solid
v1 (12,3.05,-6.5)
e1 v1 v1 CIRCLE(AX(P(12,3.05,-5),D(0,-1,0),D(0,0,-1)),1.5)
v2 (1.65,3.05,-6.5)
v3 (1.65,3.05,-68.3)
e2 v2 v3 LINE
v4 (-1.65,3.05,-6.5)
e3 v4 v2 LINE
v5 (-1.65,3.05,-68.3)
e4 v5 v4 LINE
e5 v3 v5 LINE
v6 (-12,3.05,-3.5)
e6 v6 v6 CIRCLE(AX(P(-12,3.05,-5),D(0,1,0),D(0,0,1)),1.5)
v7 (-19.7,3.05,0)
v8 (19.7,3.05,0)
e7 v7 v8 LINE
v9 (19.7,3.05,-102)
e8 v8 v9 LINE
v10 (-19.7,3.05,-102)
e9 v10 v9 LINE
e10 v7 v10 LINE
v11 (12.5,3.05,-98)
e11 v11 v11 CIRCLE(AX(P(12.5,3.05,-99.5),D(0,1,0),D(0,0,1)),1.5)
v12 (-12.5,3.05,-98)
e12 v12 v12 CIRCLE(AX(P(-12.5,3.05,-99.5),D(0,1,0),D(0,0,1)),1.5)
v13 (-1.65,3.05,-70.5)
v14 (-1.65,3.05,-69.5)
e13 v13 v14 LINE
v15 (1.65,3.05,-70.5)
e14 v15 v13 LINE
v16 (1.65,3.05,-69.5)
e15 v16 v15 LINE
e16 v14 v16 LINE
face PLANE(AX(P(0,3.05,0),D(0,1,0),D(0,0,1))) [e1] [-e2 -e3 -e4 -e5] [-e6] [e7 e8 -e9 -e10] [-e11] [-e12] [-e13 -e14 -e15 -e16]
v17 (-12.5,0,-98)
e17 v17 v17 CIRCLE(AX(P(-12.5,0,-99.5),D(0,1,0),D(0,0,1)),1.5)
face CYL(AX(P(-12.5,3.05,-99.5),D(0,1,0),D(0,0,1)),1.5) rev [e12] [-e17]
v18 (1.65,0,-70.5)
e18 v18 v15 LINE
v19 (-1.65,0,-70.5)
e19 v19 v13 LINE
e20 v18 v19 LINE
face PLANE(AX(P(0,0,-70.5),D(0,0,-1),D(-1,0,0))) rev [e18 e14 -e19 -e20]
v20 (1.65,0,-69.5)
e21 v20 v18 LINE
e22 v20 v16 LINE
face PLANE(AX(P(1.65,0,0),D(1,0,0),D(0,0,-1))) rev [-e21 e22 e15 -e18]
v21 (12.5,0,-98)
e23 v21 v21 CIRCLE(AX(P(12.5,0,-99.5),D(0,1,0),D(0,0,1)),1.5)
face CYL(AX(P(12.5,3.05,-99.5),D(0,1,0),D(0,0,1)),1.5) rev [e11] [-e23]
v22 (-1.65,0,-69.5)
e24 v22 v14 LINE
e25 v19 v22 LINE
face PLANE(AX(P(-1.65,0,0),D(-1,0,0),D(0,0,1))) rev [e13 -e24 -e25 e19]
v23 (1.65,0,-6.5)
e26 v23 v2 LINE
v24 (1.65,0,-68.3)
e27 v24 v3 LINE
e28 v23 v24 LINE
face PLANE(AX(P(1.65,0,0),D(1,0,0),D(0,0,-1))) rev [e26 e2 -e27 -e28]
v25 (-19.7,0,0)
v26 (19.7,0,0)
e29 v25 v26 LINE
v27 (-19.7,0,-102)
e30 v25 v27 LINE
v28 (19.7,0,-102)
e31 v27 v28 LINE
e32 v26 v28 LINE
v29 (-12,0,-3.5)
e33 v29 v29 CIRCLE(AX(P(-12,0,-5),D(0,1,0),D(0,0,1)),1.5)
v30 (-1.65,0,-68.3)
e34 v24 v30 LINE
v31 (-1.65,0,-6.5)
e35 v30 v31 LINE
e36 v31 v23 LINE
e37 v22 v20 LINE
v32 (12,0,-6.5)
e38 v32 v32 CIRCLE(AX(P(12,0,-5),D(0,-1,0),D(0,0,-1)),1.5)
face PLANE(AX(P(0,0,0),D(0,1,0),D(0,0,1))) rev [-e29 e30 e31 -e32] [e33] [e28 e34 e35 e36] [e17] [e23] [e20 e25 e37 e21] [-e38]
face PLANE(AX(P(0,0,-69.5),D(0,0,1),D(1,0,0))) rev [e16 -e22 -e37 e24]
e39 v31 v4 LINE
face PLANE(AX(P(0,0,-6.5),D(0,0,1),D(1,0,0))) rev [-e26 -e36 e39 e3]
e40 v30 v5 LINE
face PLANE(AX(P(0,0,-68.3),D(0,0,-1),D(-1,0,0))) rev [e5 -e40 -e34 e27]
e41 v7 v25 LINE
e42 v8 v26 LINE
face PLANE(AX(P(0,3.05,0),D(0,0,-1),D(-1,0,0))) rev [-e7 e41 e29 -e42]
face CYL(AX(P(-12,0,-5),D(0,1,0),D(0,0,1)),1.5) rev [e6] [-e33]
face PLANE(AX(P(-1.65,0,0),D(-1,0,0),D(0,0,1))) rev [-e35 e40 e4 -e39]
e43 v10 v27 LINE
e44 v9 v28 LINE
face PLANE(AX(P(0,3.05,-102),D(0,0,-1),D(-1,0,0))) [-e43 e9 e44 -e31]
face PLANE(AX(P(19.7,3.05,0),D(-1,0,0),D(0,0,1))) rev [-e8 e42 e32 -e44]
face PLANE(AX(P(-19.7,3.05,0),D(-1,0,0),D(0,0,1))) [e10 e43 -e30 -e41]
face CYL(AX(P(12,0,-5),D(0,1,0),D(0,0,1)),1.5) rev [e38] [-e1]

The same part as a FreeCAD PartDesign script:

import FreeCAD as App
import Part
import Sketcher

V = App.Vector

doc = App.newDocument("Part")
params = doc.addObject("Spreadsheet::Sheet", "Params")
for row, (alias, value) in enumerate([
    ("sketch1_height", "102 mm"),
    ("sketch1_width", "39.4 mm"),
    ("pad1_length", "3.05 mm"),
    ("sketch2_height", "1 mm"),
    ("sketch2_width", "3.3 mm"),
    ("sketch2_height2", "61.8 mm"),
    ("sketch3_diameter", "3 mm"),
    ("sketch4_diameter", "3 mm"),
    ("hole_diameter", "3 mm"),
], start=1):
    params.set(f"A{row}", alias)
    params.set(f"B{row}", "=" + value)
    params.setAlias(f"B{row}", alias)

body = doc.addObject("PartDesign::Body", "Body")

sketch1 = body.newObject("Sketcher::SketchObject", "Sketch")
sketch1.AttachmentSupport = (doc.getObject("XZ_Plane"), [""])
sketch1.MapMode = "FlatFace"
sketch1.addGeometry(Part.LineSegment(V(-19.7, -102, 0), V(-19.7, 0, 0)), False)
sketch1.addGeometry(Part.LineSegment(V(-19.7, 0, 0), V(19.7, 0, 0)), False)
sketch1.addGeometry(Part.LineSegment(V(19.7, 0, 0), V(19.7, -102, 0)), False)
sketch1.addGeometry(Part.LineSegment(V(19.7, -102, 0), V(-19.7, -102, 0)), False)
sketch1.addConstraint(Sketcher.Constraint("Coincident", 0, 2, 1, 1))
sketch1.addConstraint(Sketcher.Constraint("Coincident", 1, 2, 2, 1))
sketch1.addConstraint(Sketcher.Constraint("Coincident", 2, 2, 3, 1))
sketch1.addConstraint(Sketcher.Constraint("Coincident", 3, 2, 0, 1))
sketch1.addConstraint(Sketcher.Constraint("Vertical", 0))
sketch1.addConstraint(Sketcher.Constraint("Horizontal", 1))
sketch1.addConstraint(Sketcher.Constraint("Vertical", 2))
sketch1.addConstraint(Sketcher.Constraint("Horizontal", 3))
sketch1.addConstraint(Sketcher.Constraint("Symmetric", 0, 2, 1, 2, -1, 1))
sketch1.addConstraint(Sketcher.Constraint("DistanceY", 0, 1, 0, 2, 102.0))
sketch1.addConstraint(Sketcher.Constraint("DistanceX", 1, 1, 1, 2, 39.4))
sketch1.setExpression("Constraints[9]", "Params.sketch1_height")
sketch1.setExpression("Constraints[10]", "Params.sketch1_width")
pad1 = body.newObject("PartDesign::Pad", "Pad")
pad1.Profile = sketch1
pad1.setExpression("Length", "Params.pad1_length")
pad1.Reversed = True

sketch2 = body.newObject("Sketcher::SketchObject", "Sketch001")
sketch2.AttachmentSupport = (doc.getObject("XZ_Plane"), [""])
sketch2.MapMode = "FlatFace"
sketch2.AttachmentOffset = App.Placement(V(0, 0, -3.05), App.Rotation())
sketch2.addGeometry(Part.LineSegment(V(-1.65, -70.5, 0), V(-1.65, -69.5, 0)), False)
sketch2.addGeometry(Part.LineSegment(V(-1.65, -69.5, 0), V(1.65, -69.5, 0)), False)
sketch2.addGeometry(Part.LineSegment(V(1.65, -69.5, 0), V(1.65, -70.5, 0)), False)
sketch2.addGeometry(Part.LineSegment(V(1.65, -70.5, 0), V(-1.65, -70.5, 0)), False)
sketch2.addGeometry(Part.LineSegment(V(-1.65, -68.3, 0), V(-1.65, -6.5, 0)), False)
sketch2.addGeometry(Part.LineSegment(V(-1.65, -6.5, 0), V(1.65, -6.5, 0)), False)
sketch2.addGeometry(Part.LineSegment(V(1.65, -6.5, 0), V(1.65, -68.3, 0)), False)
sketch2.addGeometry(Part.LineSegment(V(1.65, -68.3, 0), V(-1.65, -68.3, 0)), False)
sketch2.addConstraint(Sketcher.Constraint("Coincident", 0, 2, 1, 1))
sketch2.addConstraint(Sketcher.Constraint("Coincident", 1, 2, 2, 1))
sketch2.addConstraint(Sketcher.Constraint("Coincident", 2, 2, 3, 1))
sketch2.addConstraint(Sketcher.Constraint("Coincident", 3, 2, 0, 1))
sketch2.addConstraint(Sketcher.Constraint("Coincident", 4, 2, 5, 1))
sketch2.addConstraint(Sketcher.Constraint("Coincident", 5, 2, 6, 1))
sketch2.addConstraint(Sketcher.Constraint("Coincident", 6, 2, 7, 1))
sketch2.addConstraint(Sketcher.Constraint("Coincident", 7, 2, 4, 1))
sketch2.addConstraint(Sketcher.Constraint("Vertical", 0))
sketch2.addConstraint(Sketcher.Constraint("Horizontal", 1))
sketch2.addConstraint(Sketcher.Constraint("Vertical", 2))
sketch2.addConstraint(Sketcher.Constraint("Horizontal", 3))
sketch2.addConstraint(Sketcher.Constraint("Vertical", 4))
sketch2.addConstraint(Sketcher.Constraint("Horizontal", 5))
sketch2.addConstraint(Sketcher.Constraint("Vertical", 6))
sketch2.addConstraint(Sketcher.Constraint("Horizontal", 7))
sketch2.addConstraint(Sketcher.Constraint("Vertical", 3, 2, 4, 2))
sketch2.addConstraint(Sketcher.Constraint("Vertical", 2, 2, 5, 2))
sketch2.addConstraint(Sketcher.Constraint("DistanceY", 0, 1, 0, 2, 1.0))
sketch2.addConstraint(Sketcher.Constraint("DistanceX", 1, 1, 1, 2, 3.3))
sketch2.addConstraint(Sketcher.Constraint("DistanceY", 4, 1, 4, 2, 61.8))
sketch2.addConstraint(Sketcher.Constraint("DistanceY", 0, 2, 4, 2, 63.0))
sketch2.addConstraint(Sketcher.Constraint("DistanceY", 0, 2, -1, 1, 69.5))
sketch2.addConstraint(Sketcher.Constraint("DistanceX", 0, 2, -1, 1, 1.65))
sketch2.setExpression("Constraints[18]", "Params.sketch2_height")
sketch2.setExpression("Constraints[19]", "Params.sketch2_width")
sketch2.setExpression("Constraints[20]", "Params.sketch2_height2")
pocket1 = body.newObject("PartDesign::Pocket", "Pocket")
pocket1.Profile = sketch2
pocket1.Type = "ThroughAll"
pocket1.Reversed = True

sketch3 = body.newObject("Sketcher::SketchObject", "Sketch002")
sketch3.AttachmentSupport = (doc.getObject("XZ_Plane"), [""])
sketch3.MapMode = "FlatFace"
sketch3.AttachmentOffset = App.Placement(V(0, 0, -3.05), App.Rotation())
sketch3.addGeometry(Part.Circle(V(-12, -5, 0), V(0, 0, 1), 1.5), False)
sketch3.addGeometry(Part.Circle(V(12, -5, 0), V(0, 0, 1), 1.5), False)
sketch3.addConstraint(Sketcher.Constraint("Equal", 0, 1))
sketch3.addConstraint(Sketcher.Constraint("Symmetric", 0, 3, 1, 3, -2))
sketch3.addConstraint(Sketcher.Constraint("Diameter", 0, 3.0))
sketch3.addConstraint(Sketcher.Constraint("DistanceX", 0, 3, -1, 1, 12.0))
sketch3.addConstraint(Sketcher.Constraint("DistanceY", 0, 3, -1, 1, 5.0))
sketch3.setExpression("Constraints[2]", "Params.sketch3_diameter")
pocket2 = body.newObject("PartDesign::Pocket", "Pocket001")
pocket2.Profile = sketch3
pocket2.Type = "ThroughAll"
pocket2.Reversed = True

sketch4 = body.newObject("Sketcher::SketchObject", "Sketch003")
sketch4.AttachmentSupport = (doc.getObject("XZ_Plane"), [""])
sketch4.MapMode = "FlatFace"
sketch4.AttachmentOffset = App.Placement(V(0, 0, -3.05), App.Rotation())
sketch4.addGeometry(Part.Circle(V(-12.5, -99.5, 0), V(0, 0, 1), 1.5), False)
sketch4.addGeometry(Part.Circle(V(12.5, -99.5, 0), V(0, 0, 1), 1.5), False)
sketch4.addConstraint(Sketcher.Constraint("Equal", 0, 1))
sketch4.addConstraint(Sketcher.Constraint("Symmetric", 0, 3, 1, 3, -2))
sketch4.addConstraint(Sketcher.Constraint("Diameter", 0, 3.0))
sketch4.addConstraint(Sketcher.Constraint("DistanceX", 0, 3, 1, 3, 25.0))
sketch4.addConstraint(Sketcher.Constraint("DistanceY", 0, 3, -1, 1, 99.5))
sketch4.setExpression("Constraints[2]", "Params.sketch4_diameter")
doc.recompute()
hole = body.newObject("PartDesign::Hole", "Hole")
hole.Profile = sketch4
hole.ThreadType = "None"
hole.setExpression("Diameter", "Params.hole_diameter")
hole.DepthType = "ThroughAll"
hole.Reversed = True

doc.recompute()
